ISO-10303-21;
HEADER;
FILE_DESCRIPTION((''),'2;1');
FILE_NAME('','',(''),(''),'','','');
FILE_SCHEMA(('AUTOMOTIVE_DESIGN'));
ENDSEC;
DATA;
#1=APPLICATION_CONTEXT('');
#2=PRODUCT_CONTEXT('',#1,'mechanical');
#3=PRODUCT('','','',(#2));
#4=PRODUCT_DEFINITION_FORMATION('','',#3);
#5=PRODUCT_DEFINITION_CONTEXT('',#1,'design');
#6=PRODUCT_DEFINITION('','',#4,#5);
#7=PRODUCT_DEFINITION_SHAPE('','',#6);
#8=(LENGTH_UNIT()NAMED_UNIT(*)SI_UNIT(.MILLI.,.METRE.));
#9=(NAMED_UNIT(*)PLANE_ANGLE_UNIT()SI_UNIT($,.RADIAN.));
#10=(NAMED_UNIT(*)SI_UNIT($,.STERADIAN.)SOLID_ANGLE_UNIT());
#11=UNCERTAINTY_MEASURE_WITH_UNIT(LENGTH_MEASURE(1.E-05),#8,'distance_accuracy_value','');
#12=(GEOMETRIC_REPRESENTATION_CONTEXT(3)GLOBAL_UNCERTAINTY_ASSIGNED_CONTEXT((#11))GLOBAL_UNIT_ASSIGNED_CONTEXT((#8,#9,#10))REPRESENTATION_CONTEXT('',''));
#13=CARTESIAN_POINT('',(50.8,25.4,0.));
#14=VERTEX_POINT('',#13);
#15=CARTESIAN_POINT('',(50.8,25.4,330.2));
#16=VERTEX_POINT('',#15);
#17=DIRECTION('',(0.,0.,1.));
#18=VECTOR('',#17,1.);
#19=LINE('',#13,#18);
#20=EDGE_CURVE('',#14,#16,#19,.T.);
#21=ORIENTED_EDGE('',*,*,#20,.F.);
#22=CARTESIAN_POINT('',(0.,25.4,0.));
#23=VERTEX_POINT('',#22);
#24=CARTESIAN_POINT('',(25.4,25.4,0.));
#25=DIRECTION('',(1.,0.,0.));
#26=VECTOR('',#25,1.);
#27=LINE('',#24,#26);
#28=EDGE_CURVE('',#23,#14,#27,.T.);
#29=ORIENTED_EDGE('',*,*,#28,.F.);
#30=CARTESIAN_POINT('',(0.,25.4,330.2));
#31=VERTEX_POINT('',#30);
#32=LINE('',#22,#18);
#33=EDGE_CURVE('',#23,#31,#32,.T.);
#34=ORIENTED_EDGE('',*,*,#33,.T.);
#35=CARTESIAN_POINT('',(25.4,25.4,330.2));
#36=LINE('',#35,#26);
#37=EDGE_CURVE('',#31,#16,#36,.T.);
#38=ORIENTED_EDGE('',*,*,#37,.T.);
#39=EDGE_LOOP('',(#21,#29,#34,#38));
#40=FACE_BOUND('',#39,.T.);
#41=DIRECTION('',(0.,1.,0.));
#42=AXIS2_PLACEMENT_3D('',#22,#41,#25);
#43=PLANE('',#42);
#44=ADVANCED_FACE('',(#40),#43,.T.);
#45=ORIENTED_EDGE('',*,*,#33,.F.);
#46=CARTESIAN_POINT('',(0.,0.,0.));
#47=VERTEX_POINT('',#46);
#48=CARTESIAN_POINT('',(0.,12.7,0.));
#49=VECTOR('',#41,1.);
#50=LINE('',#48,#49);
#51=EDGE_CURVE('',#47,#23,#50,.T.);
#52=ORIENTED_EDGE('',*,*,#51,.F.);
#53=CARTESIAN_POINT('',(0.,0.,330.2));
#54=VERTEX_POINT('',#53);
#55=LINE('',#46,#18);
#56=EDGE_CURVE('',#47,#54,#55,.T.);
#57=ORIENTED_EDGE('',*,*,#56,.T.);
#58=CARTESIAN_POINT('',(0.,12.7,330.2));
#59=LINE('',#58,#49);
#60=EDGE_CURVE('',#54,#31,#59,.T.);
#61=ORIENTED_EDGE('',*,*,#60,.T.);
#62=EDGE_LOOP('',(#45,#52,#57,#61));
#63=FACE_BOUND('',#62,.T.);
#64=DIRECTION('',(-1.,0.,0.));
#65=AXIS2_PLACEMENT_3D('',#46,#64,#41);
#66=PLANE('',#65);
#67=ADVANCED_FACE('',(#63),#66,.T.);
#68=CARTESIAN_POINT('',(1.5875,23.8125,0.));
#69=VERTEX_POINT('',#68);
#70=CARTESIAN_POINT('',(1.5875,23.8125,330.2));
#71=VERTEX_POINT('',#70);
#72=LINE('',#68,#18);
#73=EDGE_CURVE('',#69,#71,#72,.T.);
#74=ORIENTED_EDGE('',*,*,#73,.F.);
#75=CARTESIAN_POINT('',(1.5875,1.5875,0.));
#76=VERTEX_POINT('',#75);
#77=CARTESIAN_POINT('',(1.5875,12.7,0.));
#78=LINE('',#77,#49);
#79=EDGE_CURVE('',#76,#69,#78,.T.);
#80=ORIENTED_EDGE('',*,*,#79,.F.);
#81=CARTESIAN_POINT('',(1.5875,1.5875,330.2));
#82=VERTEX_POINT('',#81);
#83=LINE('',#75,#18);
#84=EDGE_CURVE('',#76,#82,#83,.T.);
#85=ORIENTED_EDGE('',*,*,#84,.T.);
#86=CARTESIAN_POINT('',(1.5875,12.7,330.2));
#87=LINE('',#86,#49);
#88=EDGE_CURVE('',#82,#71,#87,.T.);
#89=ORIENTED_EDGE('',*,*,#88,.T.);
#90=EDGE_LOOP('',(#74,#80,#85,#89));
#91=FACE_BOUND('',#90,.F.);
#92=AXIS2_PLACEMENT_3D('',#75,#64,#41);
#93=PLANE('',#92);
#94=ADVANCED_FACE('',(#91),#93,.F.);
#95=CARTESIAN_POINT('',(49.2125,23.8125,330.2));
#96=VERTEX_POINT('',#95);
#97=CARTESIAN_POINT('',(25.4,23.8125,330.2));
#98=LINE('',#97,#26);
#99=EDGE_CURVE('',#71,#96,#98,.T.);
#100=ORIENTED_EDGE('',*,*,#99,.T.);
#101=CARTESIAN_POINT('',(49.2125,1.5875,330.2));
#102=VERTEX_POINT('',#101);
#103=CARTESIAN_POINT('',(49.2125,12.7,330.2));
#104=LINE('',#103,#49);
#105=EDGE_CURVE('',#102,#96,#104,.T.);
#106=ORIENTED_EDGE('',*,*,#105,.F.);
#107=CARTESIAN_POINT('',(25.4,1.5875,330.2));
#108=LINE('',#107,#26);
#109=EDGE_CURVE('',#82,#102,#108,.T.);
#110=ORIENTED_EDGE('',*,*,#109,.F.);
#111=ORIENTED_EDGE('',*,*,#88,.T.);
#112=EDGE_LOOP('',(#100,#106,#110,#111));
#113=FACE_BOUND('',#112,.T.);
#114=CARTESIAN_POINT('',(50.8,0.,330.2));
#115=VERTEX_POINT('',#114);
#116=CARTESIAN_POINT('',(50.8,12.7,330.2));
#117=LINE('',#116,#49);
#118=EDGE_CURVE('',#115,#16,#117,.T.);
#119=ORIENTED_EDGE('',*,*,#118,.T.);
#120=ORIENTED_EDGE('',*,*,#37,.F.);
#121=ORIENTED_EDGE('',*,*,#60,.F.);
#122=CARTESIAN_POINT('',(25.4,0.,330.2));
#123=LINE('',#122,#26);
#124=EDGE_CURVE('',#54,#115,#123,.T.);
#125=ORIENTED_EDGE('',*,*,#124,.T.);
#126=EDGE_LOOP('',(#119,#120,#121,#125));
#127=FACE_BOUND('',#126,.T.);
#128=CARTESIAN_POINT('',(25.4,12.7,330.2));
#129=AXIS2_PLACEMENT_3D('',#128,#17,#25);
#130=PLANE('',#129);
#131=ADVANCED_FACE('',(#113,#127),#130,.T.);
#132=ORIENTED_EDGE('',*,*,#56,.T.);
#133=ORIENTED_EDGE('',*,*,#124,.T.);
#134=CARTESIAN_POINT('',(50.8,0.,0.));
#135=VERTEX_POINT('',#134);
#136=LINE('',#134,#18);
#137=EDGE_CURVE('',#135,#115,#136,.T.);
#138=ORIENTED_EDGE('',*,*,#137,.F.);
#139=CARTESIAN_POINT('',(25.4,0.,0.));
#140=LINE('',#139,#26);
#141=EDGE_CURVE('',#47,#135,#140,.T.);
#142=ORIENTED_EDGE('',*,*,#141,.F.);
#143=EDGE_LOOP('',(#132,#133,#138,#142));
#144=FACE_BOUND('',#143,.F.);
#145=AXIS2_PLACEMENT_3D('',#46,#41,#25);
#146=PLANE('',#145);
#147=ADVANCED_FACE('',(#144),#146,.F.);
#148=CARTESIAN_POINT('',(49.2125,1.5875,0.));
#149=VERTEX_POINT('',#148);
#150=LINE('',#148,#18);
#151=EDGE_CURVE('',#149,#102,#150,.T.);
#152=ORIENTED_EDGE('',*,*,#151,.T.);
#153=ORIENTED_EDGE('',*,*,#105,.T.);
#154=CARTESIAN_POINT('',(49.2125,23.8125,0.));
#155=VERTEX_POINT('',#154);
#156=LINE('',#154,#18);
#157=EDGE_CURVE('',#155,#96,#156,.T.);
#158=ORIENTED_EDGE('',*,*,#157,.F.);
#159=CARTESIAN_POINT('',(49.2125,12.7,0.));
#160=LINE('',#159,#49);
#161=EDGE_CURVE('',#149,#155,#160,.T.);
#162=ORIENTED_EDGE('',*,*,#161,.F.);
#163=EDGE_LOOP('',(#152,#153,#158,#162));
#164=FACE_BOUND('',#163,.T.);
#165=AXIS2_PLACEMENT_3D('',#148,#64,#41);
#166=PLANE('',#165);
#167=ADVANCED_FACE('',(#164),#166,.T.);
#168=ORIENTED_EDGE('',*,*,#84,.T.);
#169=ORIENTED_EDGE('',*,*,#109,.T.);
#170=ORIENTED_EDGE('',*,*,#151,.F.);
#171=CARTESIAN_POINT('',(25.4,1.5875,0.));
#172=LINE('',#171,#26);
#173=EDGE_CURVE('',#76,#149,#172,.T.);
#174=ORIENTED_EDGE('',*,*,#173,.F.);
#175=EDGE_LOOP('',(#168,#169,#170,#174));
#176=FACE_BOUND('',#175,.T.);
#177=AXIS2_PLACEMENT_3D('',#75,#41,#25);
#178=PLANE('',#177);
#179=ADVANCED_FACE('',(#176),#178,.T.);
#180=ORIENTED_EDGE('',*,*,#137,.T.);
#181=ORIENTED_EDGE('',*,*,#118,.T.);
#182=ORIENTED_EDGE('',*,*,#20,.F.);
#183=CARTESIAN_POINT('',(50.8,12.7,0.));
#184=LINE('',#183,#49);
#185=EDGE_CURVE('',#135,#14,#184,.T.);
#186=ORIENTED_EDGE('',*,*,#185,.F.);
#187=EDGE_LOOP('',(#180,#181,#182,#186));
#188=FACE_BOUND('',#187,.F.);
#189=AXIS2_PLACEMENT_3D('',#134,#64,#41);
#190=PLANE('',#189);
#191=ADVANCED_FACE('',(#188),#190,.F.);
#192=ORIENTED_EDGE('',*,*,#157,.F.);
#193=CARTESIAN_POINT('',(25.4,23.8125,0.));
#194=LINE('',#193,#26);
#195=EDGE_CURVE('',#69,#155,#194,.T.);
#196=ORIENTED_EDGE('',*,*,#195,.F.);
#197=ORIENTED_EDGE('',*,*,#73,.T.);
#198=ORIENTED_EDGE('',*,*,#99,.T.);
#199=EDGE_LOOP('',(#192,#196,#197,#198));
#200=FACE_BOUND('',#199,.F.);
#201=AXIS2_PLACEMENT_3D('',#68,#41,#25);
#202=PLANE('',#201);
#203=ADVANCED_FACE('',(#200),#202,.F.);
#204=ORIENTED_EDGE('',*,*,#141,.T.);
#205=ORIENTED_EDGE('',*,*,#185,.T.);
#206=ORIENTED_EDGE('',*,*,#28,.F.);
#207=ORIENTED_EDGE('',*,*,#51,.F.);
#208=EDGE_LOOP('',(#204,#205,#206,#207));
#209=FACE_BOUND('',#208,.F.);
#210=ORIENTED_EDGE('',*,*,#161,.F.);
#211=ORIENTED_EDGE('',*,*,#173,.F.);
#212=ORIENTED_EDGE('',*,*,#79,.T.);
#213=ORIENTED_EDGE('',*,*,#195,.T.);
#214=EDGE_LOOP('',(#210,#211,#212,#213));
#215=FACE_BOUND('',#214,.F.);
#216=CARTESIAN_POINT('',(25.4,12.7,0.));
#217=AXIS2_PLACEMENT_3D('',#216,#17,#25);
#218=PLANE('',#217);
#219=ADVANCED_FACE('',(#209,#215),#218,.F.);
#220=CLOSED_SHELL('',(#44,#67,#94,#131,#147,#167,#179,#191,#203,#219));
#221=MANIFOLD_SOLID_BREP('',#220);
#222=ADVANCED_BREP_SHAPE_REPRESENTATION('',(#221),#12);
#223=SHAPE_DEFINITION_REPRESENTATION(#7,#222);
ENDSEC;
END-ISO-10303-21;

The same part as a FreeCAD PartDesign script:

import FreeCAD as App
import Part
import Sketcher
from FreeCAD import Vector
Q = App.Units.Quantity

doc = App.newDocument("Part")
body = doc.addObject("PartDesign::Body", "Body")

# Sketch on XY plane
sketch1 = body.newObject("Sketcher::SketchObject", "Sketch")
sketch1.AttachmentSupport = (doc.getObject("XY_Plane"), [""])
sketch1.MapMode = "FlatFace"
sketch1.addGeometry([
    Part.LineSegment(Vector(0, 25.4, 0), Vector(0, 0, 0)),  # 0
    Part.LineSegment(Vector(0, 0, 0), Vector(50.8, 0, 0)),  # 1
    Part.LineSegment(Vector(50.8, 0, 0), Vector(50.8, 25.4, 0)),  # 2
    Part.LineSegment(Vector(50.8, 25.4, 0), Vector(0, 25.4, 0)),  # 3
    Part.LineSegment(Vector(49.2125, 1.5875, 0), Vector(1.5875, 1.5875, 0)),  # 4
    Part.LineSegment(Vector(1.5875, 1.5875, 0), Vector(1.5875, 23.8125, 0)),  # 5
    Part.LineSegment(Vector(1.5875, 23.8125, 0), Vector(49.2125, 23.8125, 0)),  # 6
    Part.LineSegment(Vector(49.2125, 23.8125, 0), Vector(49.2125, 1.5875, 0)),  # 7
], False)
sketch1.addConstraint([
    Sketcher.Constraint("Coincident", 0, 2, 1, 1),
    Sketcher.Constraint("Coincident", 1, 2, 2, 1),
    Sketcher.Constraint("Coincident", 2, 2, 3, 1),
    Sketcher.Constraint("Coincident", 3, 2, 0, 1),
    Sketcher.Constraint("Coincident", 4, 2, 5, 1),
    Sketcher.Constraint("Coincident", 5, 2, 6, 1),
    Sketcher.Constraint("Coincident", 6, 2, 7, 1),
    Sketcher.Constraint("Coincident", 7, 2, 4, 1),
    Sketcher.Constraint("Vertical", 0),
    Sketcher.Constraint("Horizontal", 1),
    Sketcher.Constraint("Vertical", 2),
    Sketcher.Constraint("Horizontal", 3),
    Sketcher.Constraint("Horizontal", 4),
    Sketcher.Constraint("Vertical", 5),
    Sketcher.Constraint("Horizontal", 6),
    Sketcher.Constraint("Vertical", 7),
    Sketcher.Constraint("Coincident", 0, 2, -1, 1),
    Sketcher.Constraint("DistanceX", 1, 1, 1, 2, Q("2 in")),
    Sketcher.Constraint("DistanceY", 0, 2, 0, 1, Q("1 in")),
    Sketcher.Constraint("DistanceX", 4, 2, 4, 1, Q("1.875 in")),
    Sketcher.Constraint("DistanceY", 5, 1, 5, 2, Q("0.875 in")),
    Sketcher.Constraint("DistanceX", -1, 1, 4, 2, Q("0.0625 in")),
    Sketcher.Constraint("DistanceY", -1, 1, 4, 2, Q("0.0625 in")),
])
pad1 = body.newObject("PartDesign::Pad", "Pad")
pad1.Profile = sketch1
pad1.Length = Q("13 in")

doc.recompute()
